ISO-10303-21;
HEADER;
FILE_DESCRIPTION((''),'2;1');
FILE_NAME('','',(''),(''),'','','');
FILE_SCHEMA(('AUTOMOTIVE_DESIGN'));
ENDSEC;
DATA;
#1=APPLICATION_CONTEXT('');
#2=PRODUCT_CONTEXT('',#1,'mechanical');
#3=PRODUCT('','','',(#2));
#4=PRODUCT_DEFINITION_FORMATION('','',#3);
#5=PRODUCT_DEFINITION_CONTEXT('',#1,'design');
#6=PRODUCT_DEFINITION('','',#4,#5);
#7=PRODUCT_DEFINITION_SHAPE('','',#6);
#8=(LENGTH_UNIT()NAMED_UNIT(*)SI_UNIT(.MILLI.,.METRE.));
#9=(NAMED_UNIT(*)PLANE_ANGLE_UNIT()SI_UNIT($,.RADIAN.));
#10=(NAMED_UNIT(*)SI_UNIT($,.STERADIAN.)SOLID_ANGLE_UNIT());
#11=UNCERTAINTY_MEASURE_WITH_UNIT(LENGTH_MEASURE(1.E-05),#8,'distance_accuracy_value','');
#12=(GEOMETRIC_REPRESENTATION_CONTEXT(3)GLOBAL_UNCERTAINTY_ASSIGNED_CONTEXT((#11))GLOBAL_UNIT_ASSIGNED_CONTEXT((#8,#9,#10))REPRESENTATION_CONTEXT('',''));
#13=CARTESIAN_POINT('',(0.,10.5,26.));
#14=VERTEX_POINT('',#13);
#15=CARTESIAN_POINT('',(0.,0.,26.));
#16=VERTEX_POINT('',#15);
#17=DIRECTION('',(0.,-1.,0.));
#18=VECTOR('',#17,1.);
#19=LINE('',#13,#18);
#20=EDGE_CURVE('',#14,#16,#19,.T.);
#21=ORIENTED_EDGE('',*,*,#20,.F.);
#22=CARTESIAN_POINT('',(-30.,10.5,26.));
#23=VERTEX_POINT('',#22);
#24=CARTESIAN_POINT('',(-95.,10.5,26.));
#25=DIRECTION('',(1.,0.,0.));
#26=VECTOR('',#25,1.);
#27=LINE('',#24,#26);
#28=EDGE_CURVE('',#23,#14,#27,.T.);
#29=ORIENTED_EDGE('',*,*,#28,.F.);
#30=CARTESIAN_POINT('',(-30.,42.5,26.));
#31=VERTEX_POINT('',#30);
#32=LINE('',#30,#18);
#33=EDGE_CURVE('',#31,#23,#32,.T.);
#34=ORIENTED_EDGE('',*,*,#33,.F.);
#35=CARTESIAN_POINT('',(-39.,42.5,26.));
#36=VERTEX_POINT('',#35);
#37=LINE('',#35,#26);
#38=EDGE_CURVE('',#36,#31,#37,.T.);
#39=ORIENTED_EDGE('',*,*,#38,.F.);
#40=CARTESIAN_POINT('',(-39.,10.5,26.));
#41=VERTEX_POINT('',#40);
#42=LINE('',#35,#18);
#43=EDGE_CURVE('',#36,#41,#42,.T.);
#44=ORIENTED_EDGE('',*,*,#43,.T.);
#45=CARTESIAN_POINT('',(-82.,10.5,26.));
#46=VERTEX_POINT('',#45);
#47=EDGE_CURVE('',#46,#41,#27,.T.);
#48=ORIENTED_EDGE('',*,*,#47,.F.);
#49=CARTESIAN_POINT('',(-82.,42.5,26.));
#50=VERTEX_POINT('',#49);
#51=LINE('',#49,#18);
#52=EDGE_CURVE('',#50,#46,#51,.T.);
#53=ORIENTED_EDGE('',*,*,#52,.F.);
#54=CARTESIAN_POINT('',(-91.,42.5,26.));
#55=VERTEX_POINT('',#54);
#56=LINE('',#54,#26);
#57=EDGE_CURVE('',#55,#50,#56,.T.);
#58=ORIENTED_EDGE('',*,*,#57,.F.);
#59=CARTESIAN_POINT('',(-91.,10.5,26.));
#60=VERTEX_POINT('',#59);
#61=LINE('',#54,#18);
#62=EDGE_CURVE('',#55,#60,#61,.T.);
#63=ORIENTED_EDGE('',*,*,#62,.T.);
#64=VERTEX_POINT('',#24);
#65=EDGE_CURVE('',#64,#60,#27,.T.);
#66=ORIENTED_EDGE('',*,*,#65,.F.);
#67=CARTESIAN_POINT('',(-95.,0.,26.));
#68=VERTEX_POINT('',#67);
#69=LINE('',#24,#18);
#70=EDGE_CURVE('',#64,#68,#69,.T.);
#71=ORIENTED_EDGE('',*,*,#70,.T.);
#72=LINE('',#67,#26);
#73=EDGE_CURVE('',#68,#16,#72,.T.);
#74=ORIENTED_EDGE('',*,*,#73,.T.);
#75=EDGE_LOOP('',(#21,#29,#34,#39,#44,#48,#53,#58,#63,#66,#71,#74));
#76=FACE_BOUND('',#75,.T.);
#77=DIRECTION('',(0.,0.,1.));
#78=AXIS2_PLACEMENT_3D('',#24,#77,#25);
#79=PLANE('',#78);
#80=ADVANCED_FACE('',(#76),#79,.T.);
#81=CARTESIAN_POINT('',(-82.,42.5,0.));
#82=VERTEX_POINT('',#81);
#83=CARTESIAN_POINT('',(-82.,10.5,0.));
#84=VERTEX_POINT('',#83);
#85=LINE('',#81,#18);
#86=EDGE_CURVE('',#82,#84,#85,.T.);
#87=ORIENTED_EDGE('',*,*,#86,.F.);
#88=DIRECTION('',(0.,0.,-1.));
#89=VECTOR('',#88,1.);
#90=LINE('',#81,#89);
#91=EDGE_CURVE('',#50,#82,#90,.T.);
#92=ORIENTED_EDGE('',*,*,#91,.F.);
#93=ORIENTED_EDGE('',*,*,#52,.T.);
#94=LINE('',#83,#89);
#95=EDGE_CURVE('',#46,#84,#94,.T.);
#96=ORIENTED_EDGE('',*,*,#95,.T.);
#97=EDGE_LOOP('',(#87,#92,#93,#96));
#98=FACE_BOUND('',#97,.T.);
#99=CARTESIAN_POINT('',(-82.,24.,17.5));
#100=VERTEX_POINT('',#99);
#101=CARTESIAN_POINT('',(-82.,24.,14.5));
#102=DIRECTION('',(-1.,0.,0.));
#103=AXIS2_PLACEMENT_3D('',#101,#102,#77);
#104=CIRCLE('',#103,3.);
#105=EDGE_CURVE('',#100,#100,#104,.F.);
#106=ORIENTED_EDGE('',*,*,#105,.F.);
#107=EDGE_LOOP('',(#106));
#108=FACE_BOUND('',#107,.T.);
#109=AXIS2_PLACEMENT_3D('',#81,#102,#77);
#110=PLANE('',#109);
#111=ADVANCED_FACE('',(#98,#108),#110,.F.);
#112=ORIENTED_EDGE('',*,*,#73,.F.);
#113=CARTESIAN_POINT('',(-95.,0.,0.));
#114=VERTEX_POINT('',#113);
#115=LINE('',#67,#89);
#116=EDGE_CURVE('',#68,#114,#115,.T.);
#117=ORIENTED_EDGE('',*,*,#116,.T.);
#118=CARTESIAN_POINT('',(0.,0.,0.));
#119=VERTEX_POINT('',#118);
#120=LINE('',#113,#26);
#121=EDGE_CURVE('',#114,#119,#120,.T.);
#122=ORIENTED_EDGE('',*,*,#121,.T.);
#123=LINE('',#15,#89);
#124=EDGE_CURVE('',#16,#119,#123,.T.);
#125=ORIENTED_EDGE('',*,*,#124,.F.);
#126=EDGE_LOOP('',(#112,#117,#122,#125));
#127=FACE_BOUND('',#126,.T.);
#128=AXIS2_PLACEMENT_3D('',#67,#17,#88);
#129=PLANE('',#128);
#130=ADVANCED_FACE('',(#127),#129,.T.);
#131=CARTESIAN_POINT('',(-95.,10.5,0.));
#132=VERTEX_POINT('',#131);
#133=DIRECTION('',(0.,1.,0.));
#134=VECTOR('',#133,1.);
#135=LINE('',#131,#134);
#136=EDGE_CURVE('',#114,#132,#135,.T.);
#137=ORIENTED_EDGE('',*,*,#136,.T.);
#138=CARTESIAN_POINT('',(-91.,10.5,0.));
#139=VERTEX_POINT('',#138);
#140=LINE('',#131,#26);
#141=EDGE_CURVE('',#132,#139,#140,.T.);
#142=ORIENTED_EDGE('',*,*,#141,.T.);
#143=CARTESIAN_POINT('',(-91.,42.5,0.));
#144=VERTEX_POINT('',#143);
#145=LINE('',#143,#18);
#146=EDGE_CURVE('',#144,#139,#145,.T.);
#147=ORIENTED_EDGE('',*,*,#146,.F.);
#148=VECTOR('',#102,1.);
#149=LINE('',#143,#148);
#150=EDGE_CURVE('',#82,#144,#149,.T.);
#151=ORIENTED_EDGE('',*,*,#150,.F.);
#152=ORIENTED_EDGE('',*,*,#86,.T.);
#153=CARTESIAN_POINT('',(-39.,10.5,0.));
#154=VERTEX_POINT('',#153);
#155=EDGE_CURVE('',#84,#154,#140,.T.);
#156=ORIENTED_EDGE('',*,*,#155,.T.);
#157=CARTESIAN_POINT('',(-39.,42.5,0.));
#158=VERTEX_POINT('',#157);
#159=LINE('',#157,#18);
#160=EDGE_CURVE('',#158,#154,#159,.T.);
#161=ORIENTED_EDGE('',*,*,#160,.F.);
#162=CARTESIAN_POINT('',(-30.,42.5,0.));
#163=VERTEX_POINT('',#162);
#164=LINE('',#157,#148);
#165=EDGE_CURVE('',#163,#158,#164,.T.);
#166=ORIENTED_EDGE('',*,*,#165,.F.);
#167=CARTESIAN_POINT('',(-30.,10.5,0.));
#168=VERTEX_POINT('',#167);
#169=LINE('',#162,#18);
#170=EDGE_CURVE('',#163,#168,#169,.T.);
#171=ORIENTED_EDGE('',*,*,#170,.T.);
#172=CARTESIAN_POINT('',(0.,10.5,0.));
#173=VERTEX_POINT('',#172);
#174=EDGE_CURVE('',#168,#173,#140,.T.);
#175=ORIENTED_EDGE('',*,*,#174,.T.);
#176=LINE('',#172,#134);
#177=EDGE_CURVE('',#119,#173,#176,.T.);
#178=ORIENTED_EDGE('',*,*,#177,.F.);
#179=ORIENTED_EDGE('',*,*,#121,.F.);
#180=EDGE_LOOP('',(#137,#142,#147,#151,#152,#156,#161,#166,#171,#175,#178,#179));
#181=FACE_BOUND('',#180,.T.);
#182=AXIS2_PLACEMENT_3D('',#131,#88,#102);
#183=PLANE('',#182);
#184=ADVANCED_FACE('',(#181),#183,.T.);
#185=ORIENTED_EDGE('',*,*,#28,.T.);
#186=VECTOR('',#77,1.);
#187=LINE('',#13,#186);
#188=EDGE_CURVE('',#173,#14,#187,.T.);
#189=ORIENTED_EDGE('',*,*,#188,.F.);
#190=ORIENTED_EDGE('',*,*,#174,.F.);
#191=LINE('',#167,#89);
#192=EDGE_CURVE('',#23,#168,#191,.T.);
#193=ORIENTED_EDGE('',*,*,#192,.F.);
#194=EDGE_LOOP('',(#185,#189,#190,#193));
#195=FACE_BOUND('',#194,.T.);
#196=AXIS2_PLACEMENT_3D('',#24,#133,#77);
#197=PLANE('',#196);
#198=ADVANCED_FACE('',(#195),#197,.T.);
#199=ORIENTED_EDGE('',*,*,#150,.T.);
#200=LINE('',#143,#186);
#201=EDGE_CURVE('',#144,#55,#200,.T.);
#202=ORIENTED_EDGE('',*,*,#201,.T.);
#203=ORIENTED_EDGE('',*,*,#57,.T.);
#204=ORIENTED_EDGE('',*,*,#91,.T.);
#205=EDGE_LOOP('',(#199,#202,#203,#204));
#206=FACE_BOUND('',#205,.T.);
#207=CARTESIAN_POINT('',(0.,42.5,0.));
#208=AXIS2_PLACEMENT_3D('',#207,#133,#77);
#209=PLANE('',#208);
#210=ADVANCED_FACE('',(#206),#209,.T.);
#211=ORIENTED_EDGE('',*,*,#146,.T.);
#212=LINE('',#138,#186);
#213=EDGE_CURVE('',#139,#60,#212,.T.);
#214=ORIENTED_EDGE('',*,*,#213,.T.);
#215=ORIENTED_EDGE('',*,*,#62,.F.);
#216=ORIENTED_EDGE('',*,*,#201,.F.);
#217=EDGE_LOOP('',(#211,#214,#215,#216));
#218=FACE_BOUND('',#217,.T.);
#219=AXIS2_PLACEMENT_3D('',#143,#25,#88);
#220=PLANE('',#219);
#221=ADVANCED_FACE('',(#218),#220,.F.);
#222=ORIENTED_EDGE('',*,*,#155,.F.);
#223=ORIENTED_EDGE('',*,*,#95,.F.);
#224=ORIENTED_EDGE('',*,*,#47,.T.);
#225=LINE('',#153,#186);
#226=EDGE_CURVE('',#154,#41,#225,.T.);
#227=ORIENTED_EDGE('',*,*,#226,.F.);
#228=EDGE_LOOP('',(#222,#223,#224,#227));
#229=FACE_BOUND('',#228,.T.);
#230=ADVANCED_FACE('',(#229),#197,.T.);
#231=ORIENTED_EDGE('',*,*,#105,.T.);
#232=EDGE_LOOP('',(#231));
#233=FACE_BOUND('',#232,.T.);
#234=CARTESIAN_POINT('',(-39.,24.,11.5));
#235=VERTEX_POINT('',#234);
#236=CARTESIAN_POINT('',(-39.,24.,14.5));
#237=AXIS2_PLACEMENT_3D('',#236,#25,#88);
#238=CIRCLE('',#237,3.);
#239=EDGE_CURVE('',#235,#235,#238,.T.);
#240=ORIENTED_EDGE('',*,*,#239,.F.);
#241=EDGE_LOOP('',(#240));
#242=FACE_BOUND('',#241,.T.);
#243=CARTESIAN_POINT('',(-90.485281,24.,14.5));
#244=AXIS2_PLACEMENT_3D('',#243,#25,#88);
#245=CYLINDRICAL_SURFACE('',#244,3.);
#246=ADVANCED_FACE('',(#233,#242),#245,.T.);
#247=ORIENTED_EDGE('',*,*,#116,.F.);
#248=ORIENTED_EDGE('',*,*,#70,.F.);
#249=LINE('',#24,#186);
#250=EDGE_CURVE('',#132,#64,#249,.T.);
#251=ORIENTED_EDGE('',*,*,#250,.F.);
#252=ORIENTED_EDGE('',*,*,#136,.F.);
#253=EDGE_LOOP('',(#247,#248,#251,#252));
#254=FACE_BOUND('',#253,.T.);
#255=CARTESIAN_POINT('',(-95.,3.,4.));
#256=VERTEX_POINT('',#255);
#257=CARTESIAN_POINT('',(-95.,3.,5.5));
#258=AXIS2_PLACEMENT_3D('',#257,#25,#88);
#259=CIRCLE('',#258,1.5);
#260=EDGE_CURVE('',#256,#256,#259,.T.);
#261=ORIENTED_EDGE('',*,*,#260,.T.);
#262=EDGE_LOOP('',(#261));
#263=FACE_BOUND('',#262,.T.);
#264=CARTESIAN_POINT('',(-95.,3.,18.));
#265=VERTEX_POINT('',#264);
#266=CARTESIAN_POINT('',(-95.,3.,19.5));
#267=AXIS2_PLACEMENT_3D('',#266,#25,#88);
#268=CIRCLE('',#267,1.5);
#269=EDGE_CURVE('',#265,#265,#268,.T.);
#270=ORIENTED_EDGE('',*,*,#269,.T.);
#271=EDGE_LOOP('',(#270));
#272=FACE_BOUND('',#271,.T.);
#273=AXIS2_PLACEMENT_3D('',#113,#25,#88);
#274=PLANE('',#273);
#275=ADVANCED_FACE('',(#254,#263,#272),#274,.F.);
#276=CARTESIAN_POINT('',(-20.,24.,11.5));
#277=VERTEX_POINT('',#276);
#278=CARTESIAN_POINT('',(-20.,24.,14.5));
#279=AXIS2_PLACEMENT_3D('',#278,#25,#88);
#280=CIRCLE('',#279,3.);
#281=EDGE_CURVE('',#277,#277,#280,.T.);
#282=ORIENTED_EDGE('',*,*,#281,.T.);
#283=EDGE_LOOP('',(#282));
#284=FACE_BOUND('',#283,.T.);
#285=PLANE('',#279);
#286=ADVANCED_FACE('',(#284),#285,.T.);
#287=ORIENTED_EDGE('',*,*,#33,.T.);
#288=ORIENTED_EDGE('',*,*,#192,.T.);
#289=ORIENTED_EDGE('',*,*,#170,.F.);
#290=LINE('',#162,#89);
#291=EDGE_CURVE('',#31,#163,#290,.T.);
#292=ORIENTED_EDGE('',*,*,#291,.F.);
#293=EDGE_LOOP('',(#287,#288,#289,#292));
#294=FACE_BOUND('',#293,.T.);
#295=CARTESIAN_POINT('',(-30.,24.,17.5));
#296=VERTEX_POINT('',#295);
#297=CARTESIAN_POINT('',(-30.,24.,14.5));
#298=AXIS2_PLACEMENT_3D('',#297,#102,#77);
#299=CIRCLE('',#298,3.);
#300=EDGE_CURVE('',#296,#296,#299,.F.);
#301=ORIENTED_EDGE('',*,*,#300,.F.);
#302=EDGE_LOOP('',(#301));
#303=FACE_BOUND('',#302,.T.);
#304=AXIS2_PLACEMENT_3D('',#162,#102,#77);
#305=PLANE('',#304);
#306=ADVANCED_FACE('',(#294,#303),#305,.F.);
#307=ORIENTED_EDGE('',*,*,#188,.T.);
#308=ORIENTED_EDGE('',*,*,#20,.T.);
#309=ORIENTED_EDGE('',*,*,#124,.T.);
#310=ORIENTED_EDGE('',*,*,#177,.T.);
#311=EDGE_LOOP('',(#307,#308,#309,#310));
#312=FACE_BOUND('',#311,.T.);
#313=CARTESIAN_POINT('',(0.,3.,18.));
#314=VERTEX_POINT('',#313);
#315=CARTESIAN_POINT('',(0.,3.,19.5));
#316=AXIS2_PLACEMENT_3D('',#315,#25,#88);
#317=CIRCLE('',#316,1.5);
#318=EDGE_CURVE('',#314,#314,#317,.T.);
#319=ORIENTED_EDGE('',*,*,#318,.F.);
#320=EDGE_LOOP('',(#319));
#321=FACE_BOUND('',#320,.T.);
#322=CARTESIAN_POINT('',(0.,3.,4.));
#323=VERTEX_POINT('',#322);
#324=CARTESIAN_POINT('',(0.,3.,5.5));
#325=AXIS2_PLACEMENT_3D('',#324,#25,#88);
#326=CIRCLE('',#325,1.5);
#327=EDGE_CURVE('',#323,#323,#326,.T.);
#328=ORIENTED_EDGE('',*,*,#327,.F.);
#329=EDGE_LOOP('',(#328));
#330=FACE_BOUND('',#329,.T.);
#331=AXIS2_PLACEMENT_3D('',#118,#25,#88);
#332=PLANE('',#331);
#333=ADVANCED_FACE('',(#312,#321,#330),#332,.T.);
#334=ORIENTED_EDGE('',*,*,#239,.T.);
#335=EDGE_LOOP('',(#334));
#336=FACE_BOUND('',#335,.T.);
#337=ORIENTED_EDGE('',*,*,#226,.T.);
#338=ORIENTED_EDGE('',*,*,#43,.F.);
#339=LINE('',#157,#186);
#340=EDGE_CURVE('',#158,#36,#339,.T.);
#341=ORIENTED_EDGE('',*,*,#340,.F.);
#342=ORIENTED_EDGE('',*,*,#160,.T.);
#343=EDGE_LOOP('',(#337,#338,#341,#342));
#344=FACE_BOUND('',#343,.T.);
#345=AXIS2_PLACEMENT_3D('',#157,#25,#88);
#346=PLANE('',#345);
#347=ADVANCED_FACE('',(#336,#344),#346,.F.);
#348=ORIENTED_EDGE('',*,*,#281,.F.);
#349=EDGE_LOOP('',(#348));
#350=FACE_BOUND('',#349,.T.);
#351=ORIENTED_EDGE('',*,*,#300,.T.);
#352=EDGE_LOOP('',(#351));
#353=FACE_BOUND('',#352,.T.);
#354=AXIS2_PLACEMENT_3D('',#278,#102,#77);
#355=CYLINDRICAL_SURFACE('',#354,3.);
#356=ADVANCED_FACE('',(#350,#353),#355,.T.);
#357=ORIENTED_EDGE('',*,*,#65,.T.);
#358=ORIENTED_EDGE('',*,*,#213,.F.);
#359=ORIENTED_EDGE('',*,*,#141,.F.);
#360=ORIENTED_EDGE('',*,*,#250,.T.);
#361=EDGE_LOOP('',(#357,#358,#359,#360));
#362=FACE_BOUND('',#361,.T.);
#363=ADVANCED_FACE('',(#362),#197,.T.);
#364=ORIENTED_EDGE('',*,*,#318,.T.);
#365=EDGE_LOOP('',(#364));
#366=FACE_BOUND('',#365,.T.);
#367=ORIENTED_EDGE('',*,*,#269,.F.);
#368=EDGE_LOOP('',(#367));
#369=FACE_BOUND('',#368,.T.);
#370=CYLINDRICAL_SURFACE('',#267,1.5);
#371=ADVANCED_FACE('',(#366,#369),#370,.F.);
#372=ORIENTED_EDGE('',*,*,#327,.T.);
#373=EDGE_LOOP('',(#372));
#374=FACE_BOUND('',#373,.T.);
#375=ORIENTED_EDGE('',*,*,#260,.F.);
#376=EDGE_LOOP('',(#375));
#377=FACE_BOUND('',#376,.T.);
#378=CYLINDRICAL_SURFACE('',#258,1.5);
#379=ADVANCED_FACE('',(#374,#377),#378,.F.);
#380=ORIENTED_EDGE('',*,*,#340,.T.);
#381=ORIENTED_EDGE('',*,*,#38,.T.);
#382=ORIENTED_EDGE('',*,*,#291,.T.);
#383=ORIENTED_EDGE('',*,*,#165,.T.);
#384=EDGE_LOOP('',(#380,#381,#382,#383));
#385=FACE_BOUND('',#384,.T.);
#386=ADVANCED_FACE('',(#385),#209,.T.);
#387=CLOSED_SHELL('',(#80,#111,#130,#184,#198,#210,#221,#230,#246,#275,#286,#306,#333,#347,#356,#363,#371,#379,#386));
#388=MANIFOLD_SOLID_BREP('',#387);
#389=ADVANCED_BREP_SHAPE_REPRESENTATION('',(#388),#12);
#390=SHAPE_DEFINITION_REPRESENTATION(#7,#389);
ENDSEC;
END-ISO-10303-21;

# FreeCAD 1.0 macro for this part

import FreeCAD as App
import Part
import Sketcher
Q = App.Units.Quantity


def add_polygon(sketch, points):
    """Adds a closed chain of lines whose ends are joined by coincident constraints."""
    first, n = sketch.GeometryCount, len(points)
    for a, b in zip(points, points[1:] + points[:1]):
        sketch.addGeometry(Part.LineSegment(App.Vector(*a, 0), App.Vector(*b, 0)), False)
    for i in range(n):
        sketch.addConstraint(Sketcher.Constraint("Coincident", first + i, 2, first + (i + 1) % n, 1))

doc = App.newDocument("Part")
body = doc.addObject("PartDesign::Body", "Body")

# Sketch on YZ plane
sketch1 = body.newObject("Sketcher::SketchObject", "Sketch")
sketch1.AttachmentSupport = (doc.getObject("YZ_Plane"), [""])
sketch1.MapMode = "FlatFace"
add_polygon(sketch1, [(10.5, 26), (0, 26), (0, 0), (10.5, 0)])  # lines 0-3
sketch1.addGeometry(Part.Circle(App.Vector(3, 19.5, 0), App.Vector(0, 0, 1), 1.5), False)  # 4
sketch1.addGeometry(Part.Circle(App.Vector(3, 5.5, 0), App.Vector(0, 0, 1), 1.5), False)  # 5
sketch1.addConstraint(Sketcher.Constraint("Horizontal", 0))
sketch1.addConstraint(Sketcher.Constraint("Vertical", 1))
sketch1.addConstraint(Sketcher.Constraint("Horizontal", 2))
sketch1.addConstraint(Sketcher.Constraint("Vertical", 3))
sketch1.addConstraint(Sketcher.Constraint("Coincident", 1, 2, -1, 1))
sketch1.addConstraint(Sketcher.Constraint("Equal", 4, 5))
sketch1.addConstraint(Sketcher.Constraint("Vertical", 4, 3, 5, 3))
sketch1.addConstraint(Sketcher.Constraint("Diameter", 4, Q("3 mm")))
sketch1.addConstraint(Sketcher.Constraint("DistanceY", 1, 2, 1, 1, Q("26 mm")))
sketch1.addConstraint(Sketcher.Constraint("DistanceX", 0, 2, 0, 1, Q("10.5 mm")))
sketch1.addConstraint(Sketcher.Constraint("DistanceX", -1, 1, 4, 3, Q("3 mm")))
sketch1.addConstraint(Sketcher.Constraint("DistanceY", 5, 3, 4, 3, Q("14 mm")))
sketch1.addConstraint(Sketcher.Constraint("DistanceY", -1, 1, 4, 3, Q("19.5 mm")))
pad1 = body.newObject("PartDesign::Pad", "Pad")
pad1.Profile = sketch1
pad1.Length = 95
pad1.Reversed = True

# Sketch on XZ plane
sketch2 = body.newObject("Sketcher::SketchObject", "Sketch001")
sketch2.AttachmentSupport = (doc.getObject("XZ_Plane"), [""])
sketch2.MapMode = "FlatFace"
sketch2.AttachmentOffset = App.Placement(App.Vector(0, 0, -10.5), App.Rotation())
add_polygon(sketch2, [(-39, 0), (-39, 26), (-30, 26), (-30, 0)])  # lines 0-3
add_polygon(sketch2, [(-91, 0), (-91, 26), (-82, 26), (-82, 0)])  # lines 4-7
sketch2.addConstraint(Sketcher.Constraint("Vertical", 0))
sketch2.addConstraint(Sketcher.Constraint("Horizontal", 1))
sketch2.addConstraint(Sketcher.Constraint("Vertical", 2))
sketch2.addConstraint(Sketcher.Constraint("Horizontal", 3))
sketch2.addConstraint(Sketcher.Constraint("Vertical", 4))
sketch2.addConstraint(Sketcher.Constraint("Horizontal", 5))
sketch2.addConstraint(Sketcher.Constraint("Vertical", 6))
sketch2.addConstraint(Sketcher.Constraint("Horizontal", 7))
sketch2.addConstraint(Sketcher.Constraint("PointOnObject", 2, 2, -1))
sketch2.addConstraint(Sketcher.Constraint("PointOnObject", 6, 2, -1))
sketch2.addConstraint(Sketcher.Constraint("Horizontal", 1, 2, 4, 2))
sketch2.addConstraint(Sketcher.Constraint("Equal", 3, 5))
sketch2.addConstraint(Sketcher.Constraint("DistanceX", 1, 1, 1, 2, Q("9 mm")))
sketch2.addConstraint(Sketcher.Constraint("DistanceY", 0, 1, 0, 2, Q("26 mm")))
sketch2.addConstraint(Sketcher.Constraint("DistanceX", 0, 2, -1, 1, Q("39 mm")))
sketch2.addConstraint(Sketcher.Constraint("DistanceX", 4, 2, -1, 1, Q("91 mm")))
pad2 = body.newObject("PartDesign::Pad", "Pad001")
pad2.Profile = sketch2
pad2.Length = 32
pad2.Reversed = True

# Sketch on YZ plane
sketch3 = body.newObject("Sketcher::SketchObject", "Sketch002")
sketch3.AttachmentSupport = (doc.getObject("YZ_Plane"), [""])
sketch3.MapMode = "FlatFace"
sketch3.AttachmentOffset = App.Placement(App.Vector(0, 0, -30), App.Rotation())
sketch3.addGeometry(Part.Circle(App.Vector(24, 14.5, 0), App.Vector(0, 0, 1), 3), False)
sketch3.addConstraint(Sketcher.Constraint("Diameter", 0, Q("6 mm")))
sketch3.addConstraint(Sketcher.Constraint("DistanceX", -1, 1, 0, 3, Q("24 mm")))
sketch3.addConstraint(Sketcher.Constraint("DistanceY", -1, 1, 0, 3, Q("14.5 mm")))
pad3 = body.newObject("PartDesign::Pad", "Pad002")
pad3.Profile = sketch3
pad3.Length = 52
pad3.Reversed = True

# Sketch on YZ plane
sketch4 = body.newObject("Sketcher::SketchObject", "Sketch003")
sketch4.AttachmentSupport = (doc.getObject("YZ_Plane"), [""])
sketch4.MapMode = "FlatFace"
sketch4.AttachmentOffset = App.Placement(App.Vector(0, 0, -20), App.Rotation())
sketch4.addGeometry(Part.Circle(App.Vector(24, 14.5, 0), App.Vector(0, 0, 1), 3), False)
sketch4.addConstraint(Sketcher.Constraint("Diameter", 0, Q("6 mm")))
sketch4.addConstraint(Sketcher.Constraint("DistanceX", -1, 1, 0, 3, Q("24 mm")))
sketch4.addConstraint(Sketcher.Constraint("DistanceY", -1, 1, 0, 3, Q("14.5 mm")))
pad4 = body.newObject("PartDesign::Pad", "Pad003")
pad4.Profile = sketch4
pad4.Length = 10
pad4.Reversed = True

doc.recompute()
